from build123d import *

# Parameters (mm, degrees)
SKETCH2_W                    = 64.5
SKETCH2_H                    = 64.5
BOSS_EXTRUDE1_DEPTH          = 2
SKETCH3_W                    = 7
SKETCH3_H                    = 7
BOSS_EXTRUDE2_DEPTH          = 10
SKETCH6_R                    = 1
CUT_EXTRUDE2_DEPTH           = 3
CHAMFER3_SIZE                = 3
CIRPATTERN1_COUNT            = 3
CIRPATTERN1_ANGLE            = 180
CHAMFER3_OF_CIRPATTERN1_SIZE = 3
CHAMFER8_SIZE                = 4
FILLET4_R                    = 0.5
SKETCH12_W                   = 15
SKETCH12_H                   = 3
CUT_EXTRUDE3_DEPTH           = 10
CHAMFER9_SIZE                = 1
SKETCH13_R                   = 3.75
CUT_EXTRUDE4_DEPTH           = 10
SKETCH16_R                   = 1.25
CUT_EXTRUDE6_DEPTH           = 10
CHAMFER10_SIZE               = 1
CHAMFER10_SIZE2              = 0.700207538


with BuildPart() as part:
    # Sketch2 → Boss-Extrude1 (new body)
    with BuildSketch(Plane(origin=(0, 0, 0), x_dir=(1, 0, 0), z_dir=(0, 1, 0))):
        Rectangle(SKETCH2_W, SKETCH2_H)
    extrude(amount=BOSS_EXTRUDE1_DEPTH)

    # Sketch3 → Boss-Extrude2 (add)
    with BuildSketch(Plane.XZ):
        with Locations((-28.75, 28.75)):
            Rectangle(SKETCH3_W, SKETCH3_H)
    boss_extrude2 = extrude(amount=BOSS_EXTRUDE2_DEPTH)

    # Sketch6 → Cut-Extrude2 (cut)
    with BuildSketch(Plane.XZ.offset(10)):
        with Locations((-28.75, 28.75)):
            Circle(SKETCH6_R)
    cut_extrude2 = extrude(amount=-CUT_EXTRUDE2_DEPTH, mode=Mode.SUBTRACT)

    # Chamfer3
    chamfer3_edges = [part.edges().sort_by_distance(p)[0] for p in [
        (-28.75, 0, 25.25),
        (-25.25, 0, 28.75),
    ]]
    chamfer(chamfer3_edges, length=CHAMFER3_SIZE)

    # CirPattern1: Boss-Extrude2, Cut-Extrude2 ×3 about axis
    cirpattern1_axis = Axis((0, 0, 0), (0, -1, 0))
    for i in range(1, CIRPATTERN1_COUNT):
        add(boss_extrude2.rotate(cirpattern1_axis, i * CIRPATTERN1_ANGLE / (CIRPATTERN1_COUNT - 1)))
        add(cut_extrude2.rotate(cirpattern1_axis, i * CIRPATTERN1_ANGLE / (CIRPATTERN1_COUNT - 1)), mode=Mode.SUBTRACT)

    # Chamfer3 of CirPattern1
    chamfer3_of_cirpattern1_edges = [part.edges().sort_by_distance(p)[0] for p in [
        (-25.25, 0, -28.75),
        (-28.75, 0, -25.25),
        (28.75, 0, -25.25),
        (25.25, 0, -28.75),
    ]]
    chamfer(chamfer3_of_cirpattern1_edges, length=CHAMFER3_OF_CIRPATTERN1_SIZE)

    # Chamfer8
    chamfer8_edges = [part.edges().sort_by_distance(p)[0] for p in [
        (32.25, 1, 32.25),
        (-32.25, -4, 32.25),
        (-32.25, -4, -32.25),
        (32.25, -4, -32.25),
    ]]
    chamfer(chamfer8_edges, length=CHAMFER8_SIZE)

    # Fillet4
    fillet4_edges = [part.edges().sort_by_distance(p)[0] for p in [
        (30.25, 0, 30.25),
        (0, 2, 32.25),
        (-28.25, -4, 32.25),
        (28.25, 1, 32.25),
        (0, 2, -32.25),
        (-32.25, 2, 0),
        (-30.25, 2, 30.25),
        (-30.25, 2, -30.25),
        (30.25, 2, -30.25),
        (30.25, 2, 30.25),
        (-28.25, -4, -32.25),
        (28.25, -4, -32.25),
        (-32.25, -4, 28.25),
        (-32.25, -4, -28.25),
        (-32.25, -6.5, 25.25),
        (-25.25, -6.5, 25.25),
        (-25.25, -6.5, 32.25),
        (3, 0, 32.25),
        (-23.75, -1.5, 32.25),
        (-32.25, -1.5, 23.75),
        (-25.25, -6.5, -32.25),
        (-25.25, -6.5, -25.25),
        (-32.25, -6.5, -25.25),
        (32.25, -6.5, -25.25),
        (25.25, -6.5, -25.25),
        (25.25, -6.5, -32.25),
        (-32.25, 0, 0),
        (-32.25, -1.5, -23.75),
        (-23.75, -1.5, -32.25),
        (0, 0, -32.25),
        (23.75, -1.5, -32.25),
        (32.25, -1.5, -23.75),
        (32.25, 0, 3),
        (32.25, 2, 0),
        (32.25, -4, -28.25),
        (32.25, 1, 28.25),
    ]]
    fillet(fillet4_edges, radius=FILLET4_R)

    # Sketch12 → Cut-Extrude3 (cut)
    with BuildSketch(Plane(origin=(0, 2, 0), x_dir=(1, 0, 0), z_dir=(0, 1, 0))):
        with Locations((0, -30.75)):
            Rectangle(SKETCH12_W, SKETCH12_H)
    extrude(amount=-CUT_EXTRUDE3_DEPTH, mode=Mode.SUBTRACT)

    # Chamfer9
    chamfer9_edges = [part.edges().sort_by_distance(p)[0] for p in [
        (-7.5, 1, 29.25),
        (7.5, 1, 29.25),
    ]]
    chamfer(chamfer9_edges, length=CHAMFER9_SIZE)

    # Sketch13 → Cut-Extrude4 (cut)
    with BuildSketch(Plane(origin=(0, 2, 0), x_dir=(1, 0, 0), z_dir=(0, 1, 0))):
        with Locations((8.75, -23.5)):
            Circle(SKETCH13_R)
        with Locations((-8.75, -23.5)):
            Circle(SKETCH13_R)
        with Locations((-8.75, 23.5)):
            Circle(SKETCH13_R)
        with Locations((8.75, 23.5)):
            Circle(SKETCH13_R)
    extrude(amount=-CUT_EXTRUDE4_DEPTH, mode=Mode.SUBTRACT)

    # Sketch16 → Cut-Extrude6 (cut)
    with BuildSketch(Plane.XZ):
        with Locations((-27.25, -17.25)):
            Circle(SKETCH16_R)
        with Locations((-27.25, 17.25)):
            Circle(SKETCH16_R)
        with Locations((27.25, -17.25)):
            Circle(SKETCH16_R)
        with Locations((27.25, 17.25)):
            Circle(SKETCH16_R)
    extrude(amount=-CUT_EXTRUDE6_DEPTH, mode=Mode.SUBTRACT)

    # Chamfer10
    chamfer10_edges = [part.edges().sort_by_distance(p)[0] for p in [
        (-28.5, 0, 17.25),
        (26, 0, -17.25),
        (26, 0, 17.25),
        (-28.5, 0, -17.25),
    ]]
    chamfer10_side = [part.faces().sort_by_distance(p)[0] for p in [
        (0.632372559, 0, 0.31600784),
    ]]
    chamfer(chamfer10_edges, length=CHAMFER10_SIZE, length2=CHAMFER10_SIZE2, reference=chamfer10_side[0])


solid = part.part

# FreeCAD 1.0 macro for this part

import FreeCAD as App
import Part
import Sketcher
Q = App.Units.Quantity


def edges_at(feature, points):
    """Names of the edges that pass closest to the given points."""
    edges = feature.Shape.Edges
    near = lambda p: min(range(len(edges)), key=lambda i: edges[i].distToShape(Part.Vertex(*p))[0])
    return sorted({f"Edge{near(p) + 1}" for p in points})

doc = App.newDocument("Part")
body = doc.addObject("PartDesign::Body", "Body")

# Sketch on XZ plane
sketch1 = body.newObject("Sketcher::SketchObject", "Sketch")
sketch1.AttachmentSupport = (doc.getObject("XZ_Plane"), [""])
sketch1.MapMode = "FlatFace"
sketch1.addGeometry([
    Part.LineSegment(App.Vector(-32, -32, 0), App.Vector(-32, 32, 0)),
    Part.LineSegment(App.Vector(-32, 32, 0), App.Vector(32, 32, 0)),
    Part.LineSegment(App.Vector(32, 32, 0), App.Vector(32, -32, 0)),
    Part.LineSegment(App.Vector(32, -32, 0), App.Vector(-32, -32, 0)),
], False)
sketch1.addConstraint([
    Sketcher.Constraint("Coincident", 0, 2, 1, 1),
    Sketcher.Constraint("Coincident", 1, 2, 2, 1),
    Sketcher.Constraint("Coincident", 2, 2, 3, 1),
    Sketcher.Constraint("Coincident", 3, 2, 0, 1),
    Sketcher.Constraint("Vertical", 0),
    Sketcher.Constraint("Horizontal", 1),
    Sketcher.Constraint("Vertical", 2),
    Sketcher.Constraint("Horizontal", 3),
    Sketcher.Constraint("Symmetric", 0, 2, 2, 2, -1, 1),
    Sketcher.Constraint("Equal", 3, 0),
    Sketcher.Constraint("DistanceX", 1, 1, 1, 2, Q("64.5 mm")),
])
pad1 = body.newObject("PartDesign::Pad", "Pad")
pad1.Profile = sketch1
pad1.Length = 2
pad1.Reversed = True

# Sketch on XZ plane
sketch2 = body.newObject("Sketcher::SketchObject", "Sketch001")
sketch2.AttachmentSupport = (doc.getObject("XZ_Plane"), [""])
sketch2.MapMode = "FlatFace"
sketch2.addGeometry([
    Part.LineSegment(App.Vector(-32, 32, 0), App.Vector(-32, 25, 0)),
    Part.LineSegment(App.Vector(-32, 25, 0), App.Vector(-25, 25, 0)),
    Part.LineSegment(App.Vector(-25, 25, 0), App.Vector(-25, 32, 0)),
    Part.LineSegment(App.Vector(-25, 32, 0), App.Vector(-32, 32, 0)),
], False)
sketch2.addConstraint([
    Sketcher.Constraint("Coincident", 0, 2, 1, 1),
    Sketcher.Constraint("Coincident", 1, 2, 2, 1),
    Sketcher.Constraint("Coincident", 2, 2, 3, 1),
    Sketcher.Constraint("Coincident", 3, 2, 0, 1),
    Sketcher.Constraint("Vertical", 0),
    Sketcher.Constraint("Horizontal", 1),
    Sketcher.Constraint("Vertical", 2),
    Sketcher.Constraint("Horizontal", 3),
    Sketcher.Constraint("Equal", 3, 0),
    Sketcher.Constraint("DistanceX", 1, 1, 1, 2, Q("7 mm")),
    Sketcher.Constraint("DistanceX", 0, 2, -1, 1, Q("32.25 mm")),
    Sketcher.Constraint("DistanceY", -1, 1, 0, 2, Q("25.25 mm")),
])
pad2 = body.newObject("PartDesign::Pad", "Pad001")
pad2.Profile = sketch2
pad2.Length = 10

# Sketch on XZ plane
sketch3 = body.newObject("Sketcher::SketchObject", "Sketch002")
sketch3.AttachmentSupport = (doc.getObject("XZ_Plane"), [""])
sketch3.MapMode = "FlatFace"
sketch3.AttachmentOffset = App.Placement(App.Vector(0, 0, 10), App.Rotation())
sketch3.addGeometry(Part.Circle(App.Vector(-28.8, 28.8, 0), App.Vector(0, 0, 1), 1), False)
sketch3.addConstraint([
    Sketcher.Constraint("Diameter", 0, Q("2 mm")),
    Sketcher.Constraint("DistanceX", 0, 3, -1, 1, Q("28.75 mm")),
    Sketcher.Constraint("DistanceY", -1, 1, 0, 3, Q("28.75 mm")),
])
pocket1 = body.newObject("PartDesign::Pocket", "Pocket")
pocket1.Profile = sketch3
pocket1.Length = 3
doc.recompute()

chamfer = body.newObject("PartDesign::Chamfer", "Chamfer")
chamfer.Base = (pocket1, edges_at(pocket1, [(-28.75, 0, 25.25), (-25.25, 0, 28.75)]))
chamfer.Size = 3
doc.recompute()

polarpattern = body.newObject("PartDesign::PolarPattern", "PolarPattern")
polarpattern.Originals = [pad2, pocket1]
polarpattern.Axis = (doc.getObject("Y_Axis"), [""])
polarpattern.Angle = 180
polarpattern.Occurrences = 3
polarpattern.Reversed = True
body.Tip = polarpattern
doc.recompute()

chamfer2 = body.newObject("PartDesign::Chamfer", "Chamfer001")
chamfer2.Base = (polarpattern, edges_at(polarpattern, [
    (-25.25, 0, -28.75),
    (-28.75, 0, -25.25),
    (28.75, 0, -25.25),
    (25.25, 0, -28.75),
]))
chamfer2.Size = 3
doc.recompute()

chamfer3 = body.newObject("PartDesign::Chamfer", "Chamfer002")
chamfer3.Base = (chamfer2, edges_at(chamfer2, [
    (32.25, 1, 32.25),
    (-32.25, -4, 32.25),
    (-32.25, -4, -32.25),
    (32.25, -4, -32.25),
]))
chamfer3.Size = 4
doc.recompute()

fillet = body.newObject("PartDesign::Fillet", "Fillet")
fillet.Base = (chamfer3, edges_at(chamfer3, [
    (30.25, 0, 30.25),
    (0, 2, 32.25),
    (-28.25, -4, 32.25),
    (28.25, 1, 32.25),
    (0, 2, -32.25),
    (-32.25, 2, 0),
    (-30.25, 2, 30.25),
    (-30.25, 2, -30.25),
    (30.25, 2, -30.25),
    (30.25, 2, 30.25),
    (-28.25, -4, -32.25),
    (28.25, -4, -32.25),
    (-32.25, -4, 28.25),
    (-32.25, -4, -28.25),
    (-32.25, -6.5, 25.25),
    (-25.25, -6.5, 25.25),
    (-25.25, -6.5, 32.25),
    (3, 0, 32.25),
    (-23.75, -1.5, 32.25),
    (-32.25, -1.5, 23.75),
    (-25.25, -6.5, -32.25),
    (-25.25, -6.5, -25.25),
    (-32.25, -6.5, -25.25),
    (32.25, -6.5, -25.25),
    (25.25, -6.5, -25.25),
    (25.25, -6.5, -32.25),
    (-32.25, 0, 0),
    (-32.25, -1.5, -23.75),
    (-23.75, -1.5, -32.25),
    (0, 0, -32.25),
    (23.75, -1.5, -32.25),
    (32.25, -1.5, -23.75),
    (32.25, 0, 3),
    (32.25, 2, 0),
    (32.25, -4, -28.25),
    (32.25, 1, 28.25),
]))
fillet.Radius = 0.5

# Sketch on XZ plane
sketch4 = body.newObject("Sketcher::SketchObject", "Sketch003")
sketch4.AttachmentSupport = (doc.getObject("XZ_Plane"), [""])
sketch4.MapMode = "FlatFace"
sketch4.AttachmentOffset = App.Placement(App.Vector(0, 0, -2), App.Rotation())
sketch4.addGeometry([
    Part.LineSegment(App.Vector(-7.5, 29.2, 0), App.Vector(-7.5, 32.2, 0)),
    Part.LineSegment(App.Vector(-7.5, 32.2, 0), App.Vector(7.5, 32.2, 0)),
    Part.LineSegment(App.Vector(7.5, 32.2, 0), App.Vector(7.5, 29.2, 0)),
    Part.LineSegment(App.Vector(7.5, 29.2, 0), App.Vector(-7.5, 29.2, 0)),
], False)
sketch4.addConstraint([
    Sketcher.Constraint("Coincident", 0, 2, 1, 1),
    Sketcher.Constraint("Coincident", 1, 2, 2, 1),
    Sketcher.Constraint("Coincident", 2, 2, 3, 1),
    Sketcher.Constraint("Coincident", 3, 2, 0, 1),
    Sketcher.Constraint("Vertical", 0),
    Sketcher.Constraint("Horizontal", 1),
    Sketcher.Constraint("Vertical", 2),
    Sketcher.Constraint("Horizontal", 3),
    Sketcher.Constraint("DistanceX", 1, 1, 1, 2, Q("15 mm")),
    Sketcher.Constraint("DistanceY", 0, 1, 0, 2, Q("3 mm")),
    Sketcher.Constraint("DistanceX", 0, 2, -1, 1, Q("7.5 mm")),
    Sketcher.Constraint("DistanceY", -1, 1, 0, 2, Q("32.25 mm")),
])
pocket2 = body.newObject("PartDesign::Pocket", "Pocket001")
pocket2.Profile = sketch4
pocket2.Length = 10
pocket2.Reversed = True
doc.recompute()

chamfer4 = body.newObject("PartDesign::Chamfer", "Chamfer003")
chamfer4.Base = (pocket2, edges_at(pocket2, [(-7.5, 1, 29.25), (7.5, 1, 29.25)]))
chamfer4.Size = 1

# Sketch on XZ plane
sketch5 = body.newObject("Sketcher::SketchObject", "Sketch004")
sketch5.AttachmentSupport = (doc.getObject("XZ_Plane"), [""])
sketch5.MapMode = "FlatFace"
sketch5.AttachmentOffset = App.Placement(App.Vector(0, 0, -2), App.Rotation())
sketch5.addGeometry([
    Part.Circle(App.Vector(8.8, 23.5, 0), App.Vector(0, 0, 1), 3.8),
    Part.Circle(App.Vector(-8.8, 23.5, 0), App.Vector(0, 0, 1), 3.8),
    Part.Circle(App.Vector(-8.8, -23.5, 0), App.Vector(0, 0, 1), 3.8),
    Part.Circle(App.Vector(8.8, -23.5, 0), App.Vector(0, 0, 1), 3.8),
], False)
sketch5.addConstraint([
    Sketcher.Constraint("Equal", 0, 1),
    Sketcher.Constraint("Equal", 1, 2),
    Sketcher.Constraint("Equal", 2, 3),
    Sketcher.Constraint("Symmetric", 0, 3, 2, 3, -1, 1),
    Sketcher.Constraint("Symmetric", 1, 3, 3, 3, -1, 1),
    Sketcher.Constraint("Symmetric", 0, 3, 1, 3, -2),
    Sketcher.Constraint("Diameter", 0, Q("7.5 mm")),
    Sketcher.Constraint("DistanceY", 2, 3, 1, 3, Q("47 mm")),
    Sketcher.Constraint("DistanceX", 1, 3, 0, 3, Q("17.5 mm")),
])
pocket3 = body.newObject("PartDesign::Pocket", "Pocket002")
pocket3.Profile = sketch5
pocket3.Length = 10
pocket3.Reversed = True

# Sketch on XZ plane
sketch6 = body.newObject("Sketcher::SketchObject", "Sketch005")
sketch6.AttachmentSupport = (doc.getObject("XZ_Plane"), [""])
sketch6.MapMode = "FlatFace"
sketch6.addGeometry([
    Part.Circle(App.Vector(-27.2, -17.2, 0), App.Vector(0, 0, 1), 1.2),
    Part.Circle(App.Vector(-27.2, 17.2, 0), App.Vector(0, 0, 1), 1.2),
    Part.Circle(App.Vector(27.2, -17.2, 0), App.Vector(0, 0, 1), 1.2),
    Part.Circle(App.Vector(27.2, 17.2, 0), App.Vector(0, 0, 1), 1.2),
], False)
sketch6.addConstraint([
    Sketcher.Constraint("Equal", 0, 1),
    Sketcher.Constraint("Equal", 1, 2),
    Sketcher.Constraint("Equal", 2, 3),
    Sketcher.Constraint("Symmetric", 1, 3, 2, 3, -1, 1),
    Sketcher.Constraint("Symmetric", 0, 3, 3, 3, -1, 1),
    Sketcher.Constraint("Symmetric", 0, 3, 2, 3, -2),
    Sketcher.Constraint("Diameter", 0, Q("2.5 mm")),
    Sketcher.Constraint("DistanceY", 0, 3, 1, 3, Q("34.5 mm")),
    Sketcher.Constraint("DistanceX", 0, 3, 2, 3, Q("54.5 mm")),
])
pocket4 = body.newObject("PartDesign::Pocket", "Pocket003")
pocket4.Profile = sketch6
pocket4.Length = 10
doc.recompute()

chamfer5 = body.newObject("PartDesign::Chamfer", "Chamfer004")
chamfer5.Base = (pocket4, edges_at(pocket4, [
    (-28.5, 0, 17.25),
    (26, 0, -17.25),
    (26, 0, 17.25),
    (-28.5, 0, -17.25),
]))
chamfer5.ChamferType = "Two distances"
chamfer5.Size = 1
chamfer5.Size2 = 0.700208

doc.recompute()
